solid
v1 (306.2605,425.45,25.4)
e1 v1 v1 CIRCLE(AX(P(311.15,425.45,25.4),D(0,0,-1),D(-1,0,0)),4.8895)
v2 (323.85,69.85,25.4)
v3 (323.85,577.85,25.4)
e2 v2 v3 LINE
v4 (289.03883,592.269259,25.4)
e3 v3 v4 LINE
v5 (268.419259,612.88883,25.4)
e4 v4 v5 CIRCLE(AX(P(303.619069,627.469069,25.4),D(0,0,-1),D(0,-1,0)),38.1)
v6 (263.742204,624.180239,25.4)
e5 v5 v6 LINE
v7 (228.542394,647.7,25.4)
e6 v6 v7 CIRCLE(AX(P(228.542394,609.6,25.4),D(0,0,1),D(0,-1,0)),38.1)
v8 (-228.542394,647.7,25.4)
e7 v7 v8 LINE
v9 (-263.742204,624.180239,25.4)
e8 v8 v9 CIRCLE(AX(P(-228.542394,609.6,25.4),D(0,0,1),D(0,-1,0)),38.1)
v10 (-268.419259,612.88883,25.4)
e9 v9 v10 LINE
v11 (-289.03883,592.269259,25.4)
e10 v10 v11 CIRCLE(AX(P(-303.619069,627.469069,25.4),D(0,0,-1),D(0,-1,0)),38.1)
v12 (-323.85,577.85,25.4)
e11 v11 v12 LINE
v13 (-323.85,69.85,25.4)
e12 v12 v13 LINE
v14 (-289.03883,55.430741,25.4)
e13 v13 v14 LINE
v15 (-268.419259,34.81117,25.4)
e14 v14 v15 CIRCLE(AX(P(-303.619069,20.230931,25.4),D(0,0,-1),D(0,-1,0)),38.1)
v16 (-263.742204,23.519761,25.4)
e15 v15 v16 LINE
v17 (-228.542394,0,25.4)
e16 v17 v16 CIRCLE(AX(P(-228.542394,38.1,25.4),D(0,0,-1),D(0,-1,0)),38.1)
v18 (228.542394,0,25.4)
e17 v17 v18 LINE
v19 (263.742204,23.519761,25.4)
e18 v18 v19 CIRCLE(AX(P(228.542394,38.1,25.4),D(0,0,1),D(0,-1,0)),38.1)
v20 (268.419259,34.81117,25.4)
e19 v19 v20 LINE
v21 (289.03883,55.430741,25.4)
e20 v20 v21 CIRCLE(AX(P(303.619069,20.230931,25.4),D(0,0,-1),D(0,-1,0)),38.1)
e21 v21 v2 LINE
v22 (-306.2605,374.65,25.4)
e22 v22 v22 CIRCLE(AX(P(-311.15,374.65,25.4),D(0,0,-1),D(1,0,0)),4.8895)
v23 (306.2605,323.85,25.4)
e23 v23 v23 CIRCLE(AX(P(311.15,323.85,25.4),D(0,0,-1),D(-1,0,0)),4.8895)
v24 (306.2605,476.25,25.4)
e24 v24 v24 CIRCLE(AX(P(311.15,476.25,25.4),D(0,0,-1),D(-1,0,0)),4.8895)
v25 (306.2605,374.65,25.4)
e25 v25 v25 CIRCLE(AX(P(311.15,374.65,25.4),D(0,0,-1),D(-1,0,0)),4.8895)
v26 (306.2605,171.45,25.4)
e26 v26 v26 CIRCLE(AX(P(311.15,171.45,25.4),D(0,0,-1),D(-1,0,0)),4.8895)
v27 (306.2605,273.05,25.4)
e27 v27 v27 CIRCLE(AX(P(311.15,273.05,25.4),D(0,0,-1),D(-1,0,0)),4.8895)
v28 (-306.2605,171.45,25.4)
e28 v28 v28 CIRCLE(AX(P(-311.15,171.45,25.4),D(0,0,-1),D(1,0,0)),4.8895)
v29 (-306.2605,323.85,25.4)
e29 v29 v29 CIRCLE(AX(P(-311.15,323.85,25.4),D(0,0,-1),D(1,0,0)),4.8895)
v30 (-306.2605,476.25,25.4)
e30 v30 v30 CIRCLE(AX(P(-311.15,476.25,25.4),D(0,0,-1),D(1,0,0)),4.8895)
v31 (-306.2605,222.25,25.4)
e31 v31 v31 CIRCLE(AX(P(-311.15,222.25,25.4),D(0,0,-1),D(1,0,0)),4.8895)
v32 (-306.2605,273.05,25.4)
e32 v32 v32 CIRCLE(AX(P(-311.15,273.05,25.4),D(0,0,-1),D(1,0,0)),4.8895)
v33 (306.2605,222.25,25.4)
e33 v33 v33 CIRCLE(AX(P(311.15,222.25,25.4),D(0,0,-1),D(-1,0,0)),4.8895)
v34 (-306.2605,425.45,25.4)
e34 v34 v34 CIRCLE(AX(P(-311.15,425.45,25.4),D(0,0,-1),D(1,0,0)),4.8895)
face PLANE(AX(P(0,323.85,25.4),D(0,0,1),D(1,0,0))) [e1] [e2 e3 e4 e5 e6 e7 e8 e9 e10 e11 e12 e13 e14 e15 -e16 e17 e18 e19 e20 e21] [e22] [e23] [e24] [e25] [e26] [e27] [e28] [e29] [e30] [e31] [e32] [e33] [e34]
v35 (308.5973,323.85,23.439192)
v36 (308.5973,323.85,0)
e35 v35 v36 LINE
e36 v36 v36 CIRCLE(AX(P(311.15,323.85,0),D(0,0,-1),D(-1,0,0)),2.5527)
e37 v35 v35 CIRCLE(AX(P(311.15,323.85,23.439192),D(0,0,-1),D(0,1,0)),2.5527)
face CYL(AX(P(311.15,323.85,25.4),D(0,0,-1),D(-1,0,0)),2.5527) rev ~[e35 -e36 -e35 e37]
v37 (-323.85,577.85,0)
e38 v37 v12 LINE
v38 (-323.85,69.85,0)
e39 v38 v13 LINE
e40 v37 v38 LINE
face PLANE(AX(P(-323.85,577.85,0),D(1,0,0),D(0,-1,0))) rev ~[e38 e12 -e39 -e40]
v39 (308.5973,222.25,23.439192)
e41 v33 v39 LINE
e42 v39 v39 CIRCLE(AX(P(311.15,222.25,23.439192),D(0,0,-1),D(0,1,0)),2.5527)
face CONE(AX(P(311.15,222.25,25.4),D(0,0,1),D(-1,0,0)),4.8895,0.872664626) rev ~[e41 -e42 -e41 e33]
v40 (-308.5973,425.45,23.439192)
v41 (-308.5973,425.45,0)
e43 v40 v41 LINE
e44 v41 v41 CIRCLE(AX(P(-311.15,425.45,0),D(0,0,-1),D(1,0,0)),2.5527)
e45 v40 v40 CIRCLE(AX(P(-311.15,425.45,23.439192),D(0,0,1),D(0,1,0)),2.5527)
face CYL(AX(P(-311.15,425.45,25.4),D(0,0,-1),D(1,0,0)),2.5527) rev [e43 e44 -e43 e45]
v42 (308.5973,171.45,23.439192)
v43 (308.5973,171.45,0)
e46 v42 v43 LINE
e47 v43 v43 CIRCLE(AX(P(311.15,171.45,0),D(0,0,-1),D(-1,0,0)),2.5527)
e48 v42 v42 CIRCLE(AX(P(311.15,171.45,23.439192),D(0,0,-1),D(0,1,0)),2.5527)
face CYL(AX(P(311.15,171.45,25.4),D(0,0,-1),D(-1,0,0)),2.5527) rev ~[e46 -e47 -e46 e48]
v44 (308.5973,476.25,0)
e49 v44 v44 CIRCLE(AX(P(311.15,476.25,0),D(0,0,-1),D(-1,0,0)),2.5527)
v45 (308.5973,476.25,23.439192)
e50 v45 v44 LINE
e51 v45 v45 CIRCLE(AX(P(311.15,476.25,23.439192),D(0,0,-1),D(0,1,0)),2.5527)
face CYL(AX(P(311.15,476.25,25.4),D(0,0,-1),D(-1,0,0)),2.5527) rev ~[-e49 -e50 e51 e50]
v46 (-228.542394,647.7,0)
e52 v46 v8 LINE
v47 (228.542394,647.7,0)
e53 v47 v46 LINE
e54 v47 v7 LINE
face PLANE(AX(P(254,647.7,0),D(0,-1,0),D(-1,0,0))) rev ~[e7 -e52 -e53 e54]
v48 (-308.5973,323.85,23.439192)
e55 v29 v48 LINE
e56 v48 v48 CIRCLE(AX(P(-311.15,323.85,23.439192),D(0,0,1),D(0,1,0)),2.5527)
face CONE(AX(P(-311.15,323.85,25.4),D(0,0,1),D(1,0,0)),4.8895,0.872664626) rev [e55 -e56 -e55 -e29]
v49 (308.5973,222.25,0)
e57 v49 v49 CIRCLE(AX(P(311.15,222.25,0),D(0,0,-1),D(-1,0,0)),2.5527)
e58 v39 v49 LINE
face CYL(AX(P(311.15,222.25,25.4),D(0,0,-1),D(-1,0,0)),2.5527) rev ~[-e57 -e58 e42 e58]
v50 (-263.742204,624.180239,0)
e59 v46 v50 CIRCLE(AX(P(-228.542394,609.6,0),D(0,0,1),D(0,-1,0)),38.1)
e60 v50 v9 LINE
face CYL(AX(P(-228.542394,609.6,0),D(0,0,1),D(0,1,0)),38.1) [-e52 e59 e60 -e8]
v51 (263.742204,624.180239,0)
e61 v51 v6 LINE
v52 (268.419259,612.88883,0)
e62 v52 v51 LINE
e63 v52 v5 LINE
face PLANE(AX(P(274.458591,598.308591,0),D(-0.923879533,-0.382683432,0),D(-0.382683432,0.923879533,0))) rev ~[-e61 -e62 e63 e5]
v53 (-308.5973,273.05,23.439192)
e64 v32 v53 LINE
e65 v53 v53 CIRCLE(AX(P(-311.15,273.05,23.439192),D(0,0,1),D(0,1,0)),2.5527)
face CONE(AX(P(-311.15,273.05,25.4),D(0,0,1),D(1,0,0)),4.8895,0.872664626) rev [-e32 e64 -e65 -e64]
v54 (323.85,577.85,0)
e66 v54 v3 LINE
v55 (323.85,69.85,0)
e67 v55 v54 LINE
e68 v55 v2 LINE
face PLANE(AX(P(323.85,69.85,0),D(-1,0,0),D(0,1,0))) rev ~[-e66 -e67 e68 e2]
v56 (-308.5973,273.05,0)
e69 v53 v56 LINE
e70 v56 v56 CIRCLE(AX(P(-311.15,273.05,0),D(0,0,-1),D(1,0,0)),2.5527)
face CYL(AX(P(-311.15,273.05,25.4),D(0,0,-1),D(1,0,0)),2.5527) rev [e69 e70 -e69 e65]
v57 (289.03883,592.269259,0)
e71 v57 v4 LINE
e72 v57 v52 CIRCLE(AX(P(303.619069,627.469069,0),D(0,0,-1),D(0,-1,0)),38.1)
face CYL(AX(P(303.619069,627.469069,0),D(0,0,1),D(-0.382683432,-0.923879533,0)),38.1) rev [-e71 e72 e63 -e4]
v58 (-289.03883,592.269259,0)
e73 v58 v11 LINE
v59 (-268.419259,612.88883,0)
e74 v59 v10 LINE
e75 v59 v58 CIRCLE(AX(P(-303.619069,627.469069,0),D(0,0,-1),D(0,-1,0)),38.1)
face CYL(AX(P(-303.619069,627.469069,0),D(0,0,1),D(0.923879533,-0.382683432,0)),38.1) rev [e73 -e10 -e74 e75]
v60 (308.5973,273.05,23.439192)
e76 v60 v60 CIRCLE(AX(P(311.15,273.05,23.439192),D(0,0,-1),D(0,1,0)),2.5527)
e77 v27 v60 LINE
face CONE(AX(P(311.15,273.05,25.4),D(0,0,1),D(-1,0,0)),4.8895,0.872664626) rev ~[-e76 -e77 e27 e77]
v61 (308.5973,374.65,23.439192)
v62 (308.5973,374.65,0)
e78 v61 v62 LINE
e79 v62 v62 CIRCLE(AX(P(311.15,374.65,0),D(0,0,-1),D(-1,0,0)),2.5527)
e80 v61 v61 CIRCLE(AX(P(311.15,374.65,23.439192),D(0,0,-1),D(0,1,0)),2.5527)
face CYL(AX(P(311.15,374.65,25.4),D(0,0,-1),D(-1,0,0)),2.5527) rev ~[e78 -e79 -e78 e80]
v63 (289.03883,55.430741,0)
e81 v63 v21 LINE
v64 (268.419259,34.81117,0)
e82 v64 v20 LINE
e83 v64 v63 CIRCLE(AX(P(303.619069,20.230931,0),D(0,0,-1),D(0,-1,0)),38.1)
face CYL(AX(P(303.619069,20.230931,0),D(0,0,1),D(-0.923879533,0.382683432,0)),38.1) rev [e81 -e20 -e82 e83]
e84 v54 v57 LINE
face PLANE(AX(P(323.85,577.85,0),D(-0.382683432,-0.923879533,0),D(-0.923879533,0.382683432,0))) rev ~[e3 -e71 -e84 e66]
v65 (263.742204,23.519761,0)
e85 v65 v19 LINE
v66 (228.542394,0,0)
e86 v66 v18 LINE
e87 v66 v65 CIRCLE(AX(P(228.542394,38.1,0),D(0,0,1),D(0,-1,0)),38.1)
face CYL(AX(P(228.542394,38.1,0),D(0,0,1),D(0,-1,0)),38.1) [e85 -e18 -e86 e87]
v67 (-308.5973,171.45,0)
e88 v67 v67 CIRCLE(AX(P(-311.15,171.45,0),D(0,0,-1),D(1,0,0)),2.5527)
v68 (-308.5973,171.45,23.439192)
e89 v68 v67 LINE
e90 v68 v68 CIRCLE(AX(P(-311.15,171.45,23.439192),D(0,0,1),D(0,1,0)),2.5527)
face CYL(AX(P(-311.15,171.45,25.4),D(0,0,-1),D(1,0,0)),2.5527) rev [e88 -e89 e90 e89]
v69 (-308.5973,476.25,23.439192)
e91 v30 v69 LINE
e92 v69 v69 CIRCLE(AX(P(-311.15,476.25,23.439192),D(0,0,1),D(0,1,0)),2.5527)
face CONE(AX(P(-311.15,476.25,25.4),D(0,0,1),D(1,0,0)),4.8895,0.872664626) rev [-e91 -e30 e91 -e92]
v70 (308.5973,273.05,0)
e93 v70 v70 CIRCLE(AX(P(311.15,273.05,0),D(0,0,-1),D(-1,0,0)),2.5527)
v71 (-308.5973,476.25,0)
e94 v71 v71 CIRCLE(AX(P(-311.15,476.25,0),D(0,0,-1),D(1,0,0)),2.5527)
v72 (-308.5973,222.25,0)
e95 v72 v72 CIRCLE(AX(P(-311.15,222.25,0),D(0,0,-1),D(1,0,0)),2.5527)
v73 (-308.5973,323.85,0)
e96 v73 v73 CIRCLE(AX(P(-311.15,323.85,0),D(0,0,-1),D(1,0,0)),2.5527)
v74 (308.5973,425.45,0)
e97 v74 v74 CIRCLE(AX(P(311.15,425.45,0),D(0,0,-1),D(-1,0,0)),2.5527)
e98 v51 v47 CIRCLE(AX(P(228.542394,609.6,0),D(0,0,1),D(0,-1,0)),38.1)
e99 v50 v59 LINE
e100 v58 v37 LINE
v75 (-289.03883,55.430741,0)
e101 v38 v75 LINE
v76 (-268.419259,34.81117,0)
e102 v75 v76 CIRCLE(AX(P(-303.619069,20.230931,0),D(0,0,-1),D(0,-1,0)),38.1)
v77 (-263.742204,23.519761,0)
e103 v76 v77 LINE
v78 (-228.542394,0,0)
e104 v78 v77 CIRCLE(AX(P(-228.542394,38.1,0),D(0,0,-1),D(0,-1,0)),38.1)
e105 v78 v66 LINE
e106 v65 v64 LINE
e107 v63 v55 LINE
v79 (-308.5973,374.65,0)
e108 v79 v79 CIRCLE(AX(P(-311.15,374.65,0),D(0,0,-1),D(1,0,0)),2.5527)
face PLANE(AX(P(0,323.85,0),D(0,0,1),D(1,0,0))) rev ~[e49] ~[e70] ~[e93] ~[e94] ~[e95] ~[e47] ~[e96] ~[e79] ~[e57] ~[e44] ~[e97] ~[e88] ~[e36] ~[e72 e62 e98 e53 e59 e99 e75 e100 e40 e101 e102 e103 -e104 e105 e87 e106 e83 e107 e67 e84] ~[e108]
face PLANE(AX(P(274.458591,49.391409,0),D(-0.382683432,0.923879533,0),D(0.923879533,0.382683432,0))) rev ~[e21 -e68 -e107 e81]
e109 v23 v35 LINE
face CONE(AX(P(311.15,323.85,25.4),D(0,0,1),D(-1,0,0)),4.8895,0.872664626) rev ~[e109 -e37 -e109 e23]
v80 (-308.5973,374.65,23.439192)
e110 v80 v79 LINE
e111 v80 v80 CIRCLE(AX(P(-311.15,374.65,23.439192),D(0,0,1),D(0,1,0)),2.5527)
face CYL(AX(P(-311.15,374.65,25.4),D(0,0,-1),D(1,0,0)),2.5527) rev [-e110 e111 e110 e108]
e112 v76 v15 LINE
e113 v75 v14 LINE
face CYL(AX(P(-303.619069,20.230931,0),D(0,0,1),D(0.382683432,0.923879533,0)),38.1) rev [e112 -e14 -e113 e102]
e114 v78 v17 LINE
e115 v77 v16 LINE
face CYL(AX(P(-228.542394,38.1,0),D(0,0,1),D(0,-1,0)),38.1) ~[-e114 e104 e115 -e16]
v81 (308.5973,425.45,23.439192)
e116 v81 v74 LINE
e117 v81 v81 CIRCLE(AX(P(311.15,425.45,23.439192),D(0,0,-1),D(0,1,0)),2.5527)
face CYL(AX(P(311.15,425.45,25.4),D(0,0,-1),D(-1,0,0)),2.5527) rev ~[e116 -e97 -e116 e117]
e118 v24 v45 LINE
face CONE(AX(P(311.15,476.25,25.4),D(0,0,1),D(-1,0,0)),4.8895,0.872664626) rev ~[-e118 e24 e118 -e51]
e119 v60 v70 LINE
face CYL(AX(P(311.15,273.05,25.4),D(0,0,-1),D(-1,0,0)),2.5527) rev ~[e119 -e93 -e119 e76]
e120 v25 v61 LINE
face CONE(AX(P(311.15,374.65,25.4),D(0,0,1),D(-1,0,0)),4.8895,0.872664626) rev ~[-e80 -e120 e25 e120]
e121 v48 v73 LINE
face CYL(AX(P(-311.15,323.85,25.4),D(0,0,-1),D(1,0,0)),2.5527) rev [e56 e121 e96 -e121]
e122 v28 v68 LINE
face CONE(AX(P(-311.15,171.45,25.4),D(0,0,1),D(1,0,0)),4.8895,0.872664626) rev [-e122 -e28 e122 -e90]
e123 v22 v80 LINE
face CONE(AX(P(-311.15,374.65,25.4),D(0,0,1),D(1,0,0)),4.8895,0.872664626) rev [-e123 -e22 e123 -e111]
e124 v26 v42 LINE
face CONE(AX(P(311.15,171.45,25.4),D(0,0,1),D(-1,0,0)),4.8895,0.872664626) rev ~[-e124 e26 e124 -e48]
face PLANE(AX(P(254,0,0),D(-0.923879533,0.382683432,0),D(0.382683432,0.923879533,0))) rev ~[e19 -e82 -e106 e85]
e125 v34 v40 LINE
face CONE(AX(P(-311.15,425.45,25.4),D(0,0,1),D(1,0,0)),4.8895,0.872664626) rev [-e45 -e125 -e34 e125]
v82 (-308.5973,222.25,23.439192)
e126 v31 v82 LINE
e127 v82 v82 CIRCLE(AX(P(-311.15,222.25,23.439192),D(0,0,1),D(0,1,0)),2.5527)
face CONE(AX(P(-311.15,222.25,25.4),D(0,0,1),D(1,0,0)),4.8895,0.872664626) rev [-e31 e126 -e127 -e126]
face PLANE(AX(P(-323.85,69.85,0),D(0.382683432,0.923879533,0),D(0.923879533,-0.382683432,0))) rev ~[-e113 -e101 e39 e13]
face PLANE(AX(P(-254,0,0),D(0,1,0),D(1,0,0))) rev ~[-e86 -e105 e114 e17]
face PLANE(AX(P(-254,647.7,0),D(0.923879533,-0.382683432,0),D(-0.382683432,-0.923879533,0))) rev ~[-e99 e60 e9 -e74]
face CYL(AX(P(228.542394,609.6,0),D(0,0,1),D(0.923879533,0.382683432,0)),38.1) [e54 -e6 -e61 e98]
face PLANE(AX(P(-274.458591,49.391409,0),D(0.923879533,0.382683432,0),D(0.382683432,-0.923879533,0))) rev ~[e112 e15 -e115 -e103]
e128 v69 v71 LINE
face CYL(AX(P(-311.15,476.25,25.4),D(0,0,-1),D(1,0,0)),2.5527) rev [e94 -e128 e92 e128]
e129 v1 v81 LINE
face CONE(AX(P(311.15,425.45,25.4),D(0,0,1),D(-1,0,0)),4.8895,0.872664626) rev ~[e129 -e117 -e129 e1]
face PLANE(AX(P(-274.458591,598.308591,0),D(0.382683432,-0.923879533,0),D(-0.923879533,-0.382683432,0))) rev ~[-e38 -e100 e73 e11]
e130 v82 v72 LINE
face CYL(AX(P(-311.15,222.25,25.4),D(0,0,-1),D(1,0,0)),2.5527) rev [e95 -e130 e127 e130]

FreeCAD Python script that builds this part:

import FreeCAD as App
import Part
import Sketcher
Q = App.Units.Quantity


def edges_at(feature, points):
    """Names of the edges that pass closest to the given points."""
    edges = feature.Shape.Edges
    near = lambda p: min(range(len(edges)), key=lambda i: edges[i].distToShape(Part.Vertex(*p))[0])
    return sorted({f"Edge{near(p) + 1}" for p in points})


def add_polygon(sketch, points):
    """Adds a closed chain of lines whose ends are joined by coincident constraints."""
    first, n = sketch.GeometryCount, len(points)
    for a, b in zip(points, points[1:] + points[:1]):
        sketch.addGeometry(Part.LineSegment(App.Vector(*a, 0), App.Vector(*b, 0)), False)
    for i in range(n):
        sketch.addConstraint(Sketcher.Constraint("Coincident", first + i, 2, first + (i + 1) % n, 1))

doc = App.newDocument("Part")
body = doc.addObject("PartDesign::Body", "Body")

sketch1 = doc.addObject("Sketcher::SketchObject", "Sketch")
body.addObject(sketch1)
sketch1.AttachmentSupport = (doc.XY_Plane, [""])
sketch1.MapMode = "FlatFace"
add_polygon(sketch1, [(-254, 0), (254, 0), (274, 49), (324, 70), (324, 578), (274, 598), (254, 648), (-254, 648), (-274, 598), (-324, 578), (-324, 70), (-274, 49)])
sketch1.addConstraint(Sketcher.Constraint("Horizontal", 0))
sketch1.addConstraint(Sketcher.Constraint("Vertical", 3))
sketch1.addConstraint(Sketcher.Constraint("Horizontal", 6))
sketch1.addConstraint(Sketcher.Constraint("Vertical", 9))
sketch1.addConstraint(Sketcher.Constraint("Symmetric", 0, 2, 11, 2, -1, 1))
sketch1.addConstraint(Sketcher.Constraint("Symmetric", 4, 2, 7, 2, -2))
sketch1.addConstraint(Sketcher.Constraint("Symmetric", 3, 2, 8, 2, -2))
sketch1.addConstraint(Sketcher.Constraint("Symmetric", 1, 2, 10, 2, -2))
sketch1.addConstraint(Sketcher.Constraint("Perpendicular", 1, 4))
sketch1.addConstraint(Sketcher.Constraint("Perpendicular", 2, 5))
sketch1.addConstraint(Sketcher.Constraint("Perpendicular", 4, 7))
sketch1.addConstraint(Sketcher.Constraint("Perpendicular", 5, 8))
sketch1.addConstraint(Sketcher.Constraint("Perpendicular", 7, 10))
sketch1.addConstraint(Sketcher.Constraint("Vertical", 1, 2, 4, 2))
sketch1.addConstraint(Sketcher.Constraint("Vertical", 0, 2, 5, 2))
sketch1.addConstraint(Sketcher.Constraint("Equal", 6, 3))
sketch1.addConstraint(Sketcher.Constraint("Equal", 1, 2))
sketch1.addConstraint(Sketcher.Constraint("DistanceX", 0, 1, 0, 2, Q("20 in")))
sketch1.addConstraint(Sketcher.Constraint("DistanceY", -1, 1, 5, 2, Q("25.5 in")))
sketch1.addConstraint(Sketcher.Constraint("Angle", 1, Q("67.5 deg")))
pad1 = doc.addObject("PartDesign::Pad", "Pad")
body.addObject(pad1)
pad1.Profile = sketch1
pad1.Length = Q("1 in")
doc.recompute()

fillet = doc.addObject("PartDesign::Fillet", "Fillet")
body.addObject(fillet)
fillet.Base = (pad1, edges_at(pad1, [
    (254, 0, 12.7),
    (-254, 0, 12.7),
    (-274.459, 49.391, 12.7),
    (-274.459, 598.309, 12.7),
    (-254, 647.7, 12.7),
    (254, 647.7, 12.7),
    (274.459, 598.309, 12.7),
    (274.459, 49.391, 12.7),
]))
fillet.Radius = Q("1.5 in")

sketch2 = doc.addObject("Sketcher::SketchObject", "Sketch001")
body.addObject(sketch2)
sketch2.AttachmentSupport = (doc.XY_Plane, [""])
sketch2.MapMode = "FlatFace"
sketch2.AttachmentOffset = App.Placement(App.Vector(0, 0, 1 * 25.4), App.Rotation())
sketch2.addGeometry(Part.Circle(App.Vector(311.1, 323.9, 0), App.Vector(0, 0, 1), 2.6), False)
sketch2.addGeometry(Part.Circle(App.Vector(311.1, 374.6, 0), App.Vector(0, 0, 1), 2.6), False)
sketch2.addGeometry(Part.Circle(App.Vector(311.1, 425.4, 0), App.Vector(0, 0, 1), 2.6), False)
sketch2.addGeometry(Part.Circle(App.Vector(311.1, 273.1, 0), App.Vector(0, 0, 1), 2.6), False)
sketch2.addGeometry(Part.Circle(App.Vector(311.1, 222.2, 0), App.Vector(0, 0, 1), 2.6), False)
sketch2.addGeometry(Part.Circle(App.Vector(311.1, 171.4, 0), App.Vector(0, 0, 1), 2.6), False)
sketch2.addGeometry(Part.Circle(App.Vector(311.1, 476.2, 0), App.Vector(0, 0, 1), 2.6), False)
sketch2.addConstraint(Sketcher.Constraint("Equal", 0, 1))
sketch2.addConstraint(Sketcher.Constraint("Equal", 1, 2))
sketch2.addConstraint(Sketcher.Constraint("Equal", 2, 3))
sketch2.addConstraint(Sketcher.Constraint("Equal", 3, 4))
sketch2.addConstraint(Sketcher.Constraint("Equal", 4, 5))
sketch2.addConstraint(Sketcher.Constraint("Equal", 5, 6))
sketch2.addConstraint(Sketcher.Constraint("Vertical", 0, 3, 1, 3))
sketch2.addConstraint(Sketcher.Constraint("Vertical", 1, 3, 2, 3))
sketch2.addConstraint(Sketcher.Constraint("Vertical", 2, 3, 3, 3))
sketch2.addConstraint(Sketcher.Constraint("Vertical", 3, 3, 4, 3))
sketch2.addConstraint(Sketcher.Constraint("Vertical", 4, 3, 5, 3))
sketch2.addConstraint(Sketcher.Constraint("Vertical", 5, 3, 6, 3))
sketch2.addConstraint(Sketcher.Constraint("Diameter", 0, Q("0.201 in")))
sketch2.addConstraint(Sketcher.Constraint("DistanceY", 0, 3, 1, 3, Q("2 in")))
sketch2.addConstraint(Sketcher.Constraint("DistanceY", 1, 3, 2, 3, Q("2 in")))
sketch2.addConstraint(Sketcher.Constraint("DistanceY", 3, 3, 0, 3, Q("2 in")))
sketch2.addConstraint(Sketcher.Constraint("DistanceY", 4, 3, 3, 3, Q("2 in")))
sketch2.addConstraint(Sketcher.Constraint("DistanceY", 5, 3, 4, 3, Q("2 in")))
sketch2.addConstraint(Sketcher.Constraint("DistanceY", 2, 3, 6, 3, Q("2 in")))
sketch2.addConstraint(Sketcher.Constraint("DistanceX", -1, 1, 0, 3, Q("12.25 in")))
sketch2.addConstraint(Sketcher.Constraint("DistanceY", -1, 1, 0, 3, Q("12.75 in")))
doc.recompute()
hole = doc.addObject("PartDesign::Hole", "Hole")
body.addObject(hole)
hole.Profile = sketch2
hole.ThreadType = "None"
hole.Diameter = Q("0.201 in")
hole.DepthType = "ThroughAll"
hole.HoleCutType = "Countersink"
hole.HoleCutDiameter = Q("0.385 in")
hole.HoleCutCountersinkAngle = 100
doc.recompute()

mirrored = doc.addObject("PartDesign::Mirrored", "Mirrored")
body.addObject(mirrored)
mirrored.Originals = [hole]
mirrored.MirrorPlane = (doc.YZ_Plane, [""])
body.Tip = mirrored

doc.recompute()
